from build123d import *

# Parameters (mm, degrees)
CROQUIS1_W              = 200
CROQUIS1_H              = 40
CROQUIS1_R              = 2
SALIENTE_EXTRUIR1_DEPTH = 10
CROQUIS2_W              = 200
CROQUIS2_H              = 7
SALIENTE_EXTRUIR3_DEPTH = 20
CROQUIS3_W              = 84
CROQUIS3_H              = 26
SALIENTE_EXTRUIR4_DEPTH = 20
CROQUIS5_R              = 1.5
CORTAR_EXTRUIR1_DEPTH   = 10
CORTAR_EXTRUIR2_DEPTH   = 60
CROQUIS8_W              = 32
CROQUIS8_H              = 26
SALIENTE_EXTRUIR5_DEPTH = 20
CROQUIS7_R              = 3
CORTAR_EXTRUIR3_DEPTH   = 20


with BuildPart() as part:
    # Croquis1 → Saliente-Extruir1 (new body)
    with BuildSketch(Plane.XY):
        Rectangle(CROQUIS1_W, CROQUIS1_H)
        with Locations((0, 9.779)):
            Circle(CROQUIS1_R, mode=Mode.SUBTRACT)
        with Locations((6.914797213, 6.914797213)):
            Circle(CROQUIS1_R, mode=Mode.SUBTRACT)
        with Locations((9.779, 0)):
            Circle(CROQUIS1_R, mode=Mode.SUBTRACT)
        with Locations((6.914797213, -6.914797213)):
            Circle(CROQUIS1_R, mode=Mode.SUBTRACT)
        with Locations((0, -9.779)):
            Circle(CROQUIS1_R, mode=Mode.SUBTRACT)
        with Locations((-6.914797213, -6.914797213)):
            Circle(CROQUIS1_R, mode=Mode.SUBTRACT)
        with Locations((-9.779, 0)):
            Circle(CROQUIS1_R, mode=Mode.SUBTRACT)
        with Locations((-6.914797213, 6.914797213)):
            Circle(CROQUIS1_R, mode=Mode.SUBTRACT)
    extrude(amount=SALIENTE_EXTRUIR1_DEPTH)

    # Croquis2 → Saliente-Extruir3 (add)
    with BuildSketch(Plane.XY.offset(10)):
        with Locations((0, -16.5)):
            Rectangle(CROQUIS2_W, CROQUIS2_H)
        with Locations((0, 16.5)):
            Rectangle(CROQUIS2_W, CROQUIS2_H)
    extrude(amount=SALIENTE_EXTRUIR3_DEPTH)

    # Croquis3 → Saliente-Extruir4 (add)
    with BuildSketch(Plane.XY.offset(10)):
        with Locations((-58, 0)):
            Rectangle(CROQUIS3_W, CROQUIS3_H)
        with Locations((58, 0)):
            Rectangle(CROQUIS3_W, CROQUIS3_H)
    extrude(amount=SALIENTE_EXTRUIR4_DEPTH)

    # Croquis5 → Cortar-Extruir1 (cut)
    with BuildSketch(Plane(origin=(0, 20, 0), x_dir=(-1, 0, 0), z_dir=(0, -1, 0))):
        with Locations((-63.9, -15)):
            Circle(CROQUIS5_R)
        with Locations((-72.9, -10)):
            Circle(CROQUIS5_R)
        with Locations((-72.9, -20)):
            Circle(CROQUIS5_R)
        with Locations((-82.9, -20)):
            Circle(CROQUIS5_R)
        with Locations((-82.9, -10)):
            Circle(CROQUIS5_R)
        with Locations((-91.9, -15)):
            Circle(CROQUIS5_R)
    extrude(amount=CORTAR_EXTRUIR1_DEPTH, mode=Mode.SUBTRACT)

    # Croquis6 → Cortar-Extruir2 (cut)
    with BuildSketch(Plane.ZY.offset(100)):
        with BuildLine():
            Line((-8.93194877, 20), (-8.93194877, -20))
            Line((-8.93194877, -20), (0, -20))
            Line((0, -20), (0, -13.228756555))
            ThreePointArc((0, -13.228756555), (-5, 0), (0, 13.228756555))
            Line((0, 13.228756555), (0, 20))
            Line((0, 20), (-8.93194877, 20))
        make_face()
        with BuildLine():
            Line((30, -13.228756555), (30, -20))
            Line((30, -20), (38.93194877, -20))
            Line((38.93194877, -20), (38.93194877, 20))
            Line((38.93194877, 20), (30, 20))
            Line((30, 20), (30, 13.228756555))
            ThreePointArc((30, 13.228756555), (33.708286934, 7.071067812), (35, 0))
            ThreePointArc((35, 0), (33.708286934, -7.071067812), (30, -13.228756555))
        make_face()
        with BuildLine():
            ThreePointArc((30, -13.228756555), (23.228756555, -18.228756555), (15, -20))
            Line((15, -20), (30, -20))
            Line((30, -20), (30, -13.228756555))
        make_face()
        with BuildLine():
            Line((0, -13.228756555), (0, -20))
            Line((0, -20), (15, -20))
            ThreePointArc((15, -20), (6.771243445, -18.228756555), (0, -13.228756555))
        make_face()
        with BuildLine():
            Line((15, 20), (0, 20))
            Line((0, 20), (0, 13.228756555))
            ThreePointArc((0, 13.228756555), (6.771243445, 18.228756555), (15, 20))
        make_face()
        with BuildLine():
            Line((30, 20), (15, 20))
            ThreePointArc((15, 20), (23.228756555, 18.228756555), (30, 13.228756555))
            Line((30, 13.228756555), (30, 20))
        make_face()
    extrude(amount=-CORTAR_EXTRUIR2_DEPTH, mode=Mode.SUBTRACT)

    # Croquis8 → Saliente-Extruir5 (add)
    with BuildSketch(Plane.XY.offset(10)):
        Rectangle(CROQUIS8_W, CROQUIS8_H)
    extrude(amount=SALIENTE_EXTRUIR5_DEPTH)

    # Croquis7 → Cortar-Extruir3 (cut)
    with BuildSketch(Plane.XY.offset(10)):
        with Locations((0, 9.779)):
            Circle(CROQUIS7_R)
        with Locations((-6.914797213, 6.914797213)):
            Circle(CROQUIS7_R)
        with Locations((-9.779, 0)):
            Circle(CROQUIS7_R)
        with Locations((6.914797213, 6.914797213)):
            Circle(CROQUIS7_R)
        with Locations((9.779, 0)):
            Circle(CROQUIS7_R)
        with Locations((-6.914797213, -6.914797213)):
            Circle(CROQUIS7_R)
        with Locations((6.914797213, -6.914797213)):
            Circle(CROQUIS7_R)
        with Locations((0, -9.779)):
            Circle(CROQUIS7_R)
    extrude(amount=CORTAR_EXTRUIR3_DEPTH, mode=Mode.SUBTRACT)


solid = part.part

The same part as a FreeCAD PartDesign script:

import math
import FreeCAD as App
import Part
import Sketcher
from FreeCAD import Vector
Q = App.Units.Quantity

doc = App.newDocument("Part")
body = doc.addObject("PartDesign::Body", "Body")

# Sketch on XY plane
sketch1 = body.newObject("Sketcher::SketchObject", "Sketch")
sketch1.AttachmentSupport = (doc.getObject("XY_Plane"), [""])
sketch1.MapMode = "FlatFace"
sketch1.addGeometry([
    Part.LineSegment(Vector(-100, 20, 0), Vector(-100, -20, 0)),  # 0
    Part.LineSegment(Vector(-100, -20, 0), Vector(100, -20, 0)),  # 1
    Part.LineSegment(Vector(100, -20, 0), Vector(100, 20, 0)),  # 2
    Part.LineSegment(Vector(100, 20, 0), Vector(-100, 20, 0)),  # 3
    Part.Circle(Vector(-6.9, -6.9, 0), Vector(0, 0, 1), 2),  # 4
    Part.Circle(Vector(0, -9.8, 0), Vector(0, 0, 1), 2),  # 5
    Part.Circle(Vector(6.9, -6.9, 0), Vector(0, 0, 1), 2),  # 6
    Part.Circle(Vector(-9.8, 0, 0), Vector(0, 0, 1), 2),  # 7
    Part.Circle(Vector(-6.9, 6.9, 0), Vector(0, 0, 1), 2),  # 8
    Part.Circle(Vector(9.8, 0, 0), Vector(0, 0, 1), 2),  # 9
    Part.Circle(Vector(0, 9.8, 0), Vector(0, 0, 1), 2),  # 10
    Part.Circle(Vector(6.9, 6.9, 0), Vector(0, 0, 1), 2),  # 11
], False)
sketch1.addConstraint([
    Sketcher.Constraint("Coincident", 0, 2, 1, 1),
    Sketcher.Constraint("Coincident", 1, 2, 2, 1),
    Sketcher.Constraint("Coincident", 2, 2, 3, 1),
    Sketcher.Constraint("Coincident", 3, 2, 0, 1),
    Sketcher.Constraint("Vertical", 0),
    Sketcher.Constraint("Horizontal", 1),
    Sketcher.Constraint("Vertical", 2),
    Sketcher.Constraint("Horizontal", 3),
    Sketcher.Constraint("Equal", 4, 5),
    Sketcher.Constraint("Equal", 5, 6),
    Sketcher.Constraint("Equal", 6, 7),
    Sketcher.Constraint("Equal", 7, 8),
    Sketcher.Constraint("Equal", 8, 9),
    Sketcher.Constraint("Equal", 9, 10),
    Sketcher.Constraint("Equal", 10, 11),
    Sketcher.Constraint("Symmetric", 6, 3, 8, 3, -1, 1),
    Sketcher.Constraint("Symmetric", 7, 3, 9, 3, -1, 1),
    Sketcher.Constraint("Symmetric", 5, 3, 10, 3, -1, 1),
    Sketcher.Constraint("Symmetric", 4, 3, 11, 3, -1, 1),
    Sketcher.Constraint("Symmetric", 0, 2, 2, 2, -1, 1),
    Sketcher.Constraint("Symmetric", 4, 3, 6, 3, -2),
    Sketcher.Constraint("PointOnObject", 5, 3, -2),
    Sketcher.Constraint("PointOnObject", 7, 3, -1),
    Sketcher.Constraint("Diameter", 4, Q("4 mm")),
    Sketcher.Constraint("DistanceX", 1, 1, 1, 2, Q("200 mm")),
    Sketcher.Constraint("DistanceY", 0, 2, 0, 1, Q("40 mm")),
    Sketcher.Constraint("DistanceY", 5, 3, -1, 1, Q("9.779 mm")),
    Sketcher.Constraint("DistanceX", 7, 3, -1, 1, Q("9.779 mm")),
    Sketcher.Constraint("DistanceX", 4, 3, -1, 1, Q("6.914797 mm")),
    Sketcher.Constraint("DistanceY", 4, 3, -1, 1, Q("6.914797 mm")),
])
pad1 = body.newObject("PartDesign::Pad", "Pad")
pad1.Profile = sketch1
pad1.Length = 10

# Sketch on XY plane
sketch2 = body.newObject("Sketcher::SketchObject", "Sketch001")
sketch2.AttachmentSupport = (doc.getObject("XY_Plane"), [""])
sketch2.MapMode = "FlatFace"
sketch2.AttachmentOffset = App.Placement(Vector(0, 0, 10), App.Rotation())
sketch2.addGeometry([
    Part.LineSegment(Vector(-100, -13, 0), Vector(-100, -20, 0)),  # 0
    Part.LineSegment(Vector(-100, -20, 0), Vector(100, -20, 0)),  # 1
    Part.LineSegment(Vector(100, -20, 0), Vector(100, -13, 0)),  # 2
    Part.LineSegment(Vector(100, -13, 0), Vector(-100, -13, 0)),  # 3
    Part.LineSegment(Vector(-100, 20, 0), Vector(-100, 13, 0)),  # 4
    Part.LineSegment(Vector(-100, 13, 0), Vector(100, 13, 0)),  # 5
    Part.LineSegment(Vector(100, 13, 0), Vector(100, 20, 0)),  # 6
    Part.LineSegment(Vector(100, 20, 0), Vector(-100, 20, 0)),  # 7
], False)
sketch2.addConstraint([
    Sketcher.Constraint("Coincident", 0, 2, 1, 1),
    Sketcher.Constraint("Coincident", 1, 2, 2, 1),
    Sketcher.Constraint("Coincident", 2, 2, 3, 1),
    Sketcher.Constraint("Coincident", 3, 2, 0, 1),
    Sketcher.Constraint("Coincident", 4, 2, 5, 1),
    Sketcher.Constraint("Coincident", 5, 2, 6, 1),
    Sketcher.Constraint("Coincident", 6, 2, 7, 1),
    Sketcher.Constraint("Coincident", 7, 2, 4, 1),
    Sketcher.Constraint("Vertical", 0),
    Sketcher.Constraint("Horizontal", 1),
    Sketcher.Constraint("Vertical", 2),
    Sketcher.Constraint("Horizontal", 3),
    Sketcher.Constraint("Vertical", 4),
    Sketcher.Constraint("Horizontal", 5),
    Sketcher.Constraint("Vertical", 6),
    Sketcher.Constraint("Horizontal", 7),
    Sketcher.Constraint("Symmetric", 2, 2, 4, 2, -1, 1),
    Sketcher.Constraint("Symmetric", 0, 2, 6, 2, -1, 1),
    Sketcher.Constraint("Vertical", 3, 2, 4, 2),
    Sketcher.Constraint("DistanceX", 1, 1, 1, 2, Q("200 mm")),
    Sketcher.Constraint("DistanceY", 0, 2, 0, 1, Q("7 mm")),
    Sketcher.Constraint("DistanceY", 0, 2, -1, 1, Q("20 mm")),
])
pad2 = body.newObject("PartDesign::Pad", "Pad001")
pad2.Profile = sketch2
pad2.Length = 20

# Sketch on XY plane
sketch3 = body.newObject("Sketcher::SketchObject", "Sketch002")
sketch3.AttachmentSupport = (doc.getObject("XY_Plane"), [""])
sketch3.MapMode = "FlatFace"
sketch3.AttachmentOffset = App.Placement(Vector(0, 0, 10), App.Rotation())
sketch3.addGeometry([
    Part.LineSegment(Vector(-100, 13, 0), Vector(-100, -13, 0)),  # 0
    Part.LineSegment(Vector(-100, -13, 0), Vector(-16, -13, 0)),  # 1
    Part.LineSegment(Vector(-16, -13, 0), Vector(-16, 13, 0)),  # 2
    Part.LineSegment(Vector(-16, 13, 0), Vector(-100, 13, 0)),  # 3
    Part.LineSegment(Vector(16, 13, 0), Vector(16, -13, 0)),  # 4
    Part.LineSegment(Vector(16, -13, 0), Vector(100, -13, 0)),  # 5
    Part.LineSegment(Vector(100, -13, 0), Vector(100, 13, 0)),  # 6
    Part.LineSegment(Vector(100, 13, 0), Vector(16, 13, 0)),  # 7
], False)
sketch3.addConstraint([
    Sketcher.Constraint("Coincident", 0, 2, 1, 1),
    Sketcher.Constraint("Coincident", 1, 2, 2, 1),
    Sketcher.Constraint("Coincident", 2, 2, 3, 1),
    Sketcher.Constraint("Coincident", 3, 2, 0, 1),
    Sketcher.Constraint("Coincident", 4, 2, 5, 1),
    Sketcher.Constraint("Coincident", 5, 2, 6, 1),
    Sketcher.Constraint("Coincident", 6, 2, 7, 1),
    Sketcher.Constraint("Coincident", 7, 2, 4, 1),
    Sketcher.Constraint("Vertical", 0),
    Sketcher.Constraint("Horizontal", 1),
    Sketcher.Constraint("Vertical", 2),
    Sketcher.Constraint("Horizontal", 3),
    Sketcher.Constraint("Vertical", 4),
    Sketcher.Constraint("Horizontal", 5),
    Sketcher.Constraint("Vertical", 6),
    Sketcher.Constraint("Horizontal", 7),
    Sketcher.Constraint("Symmetric", 2, 2, 4, 2, -1, 1),
    Sketcher.Constraint("Symmetric", 0, 2, 6, 2, -1, 1),
    Sketcher.Constraint("Horizontal", 1, 2, 4, 2),
    Sketcher.Constraint("DistanceX", 1, 1, 1, 2, Q("84 mm")),
    Sketcher.Constraint("DistanceY", 0, 2, 0, 1, Q("26 mm")),
    Sketcher.Constraint("DistanceX", 0, 2, -1, 1, Q("100 mm")),
])
pad3 = body.newObject("PartDesign::Pad", "Pad002")
pad3.Profile = sketch3
pad3.Length = 20

# Sketch on XZ plane
sketch4 = body.newObject("Sketcher::SketchObject", "Sketch003")
sketch4.AttachmentSupport = (doc.getObject("XZ_Plane"), [""])
sketch4.MapMode = "FlatFace"
sketch4.AttachmentOffset = App.Placement(Vector(0, 0, -20), App.Rotation())
sketch4.addGeometry([
    Part.Circle(Vector(63.9, 15, 0), Vector(0, 0, 1), 1.5),  # 0
    Part.Circle(Vector(72.9, 10, 0), Vector(0, 0, 1), 1.5),  # 1
    Part.Circle(Vector(72.9, 20, 0), Vector(0, 0, 1), 1.5),  # 2
    Part.Circle(Vector(82.9, 20, 0), Vector(0, 0, 1), 1.5),  # 3
    Part.Circle(Vector(82.9, 10, 0), Vector(0, 0, 1), 1.5),  # 4
    Part.Circle(Vector(91.9, 15, 0), Vector(0, 0, 1), 1.5),  # 5
], False)
sketch4.addConstraint([
    Sketcher.Constraint("Equal", 0, 1),
    Sketcher.Constraint("Equal", 1, 2),
    Sketcher.Constraint("Equal", 2, 3),
    Sketcher.Constraint("Equal", 3, 4),
    Sketcher.Constraint("Equal", 4, 5),
    Sketcher.Constraint("Horizontal", 2, 3, 3, 3),
    Sketcher.Constraint("Horizontal", 1, 3, 4, 3),
    Sketcher.Constraint("Horizontal", 0, 3, 5, 3),
    Sketcher.Constraint("Vertical", 1, 3, 2, 3),
    Sketcher.Constraint("Vertical", 3, 3, 4, 3),
    Sketcher.Constraint("Diameter", 0, Q("3 mm")),
    Sketcher.Constraint("DistanceY", -1, 1, 0, 3, Q("15 mm")),
    Sketcher.Constraint("DistanceY", -1, 1, 1, 3, Q("10 mm")),
    Sketcher.Constraint("DistanceY", -1, 1, 2, 3, Q("20 mm")),
    Sketcher.Constraint("DistanceX", 0, 3, 1, 3, Q("9 mm")),
    Sketcher.Constraint("DistanceX", 2, 3, 3, 3, Q("10 mm")),
    Sketcher.Constraint("DistanceX", 3, 3, 5, 3, Q("9 mm")),
    Sketcher.Constraint("DistanceX", -1, 1, 0, 3, Q("63.9 mm")),
])
pocket1 = body.newObject("PartDesign::Pocket", "Pocket")
pocket1.Profile = sketch4
pocket1.Length = 10
pocket1.Reversed = True

# Sketch on YZ plane
sketch5 = body.newObject("Sketcher::SketchObject", "Sketch004")
sketch5.AttachmentSupport = (doc.getObject("YZ_Plane"), [""])
sketch5.MapMode = "FlatFace"
sketch5.AttachmentOffset = App.Placement(Vector(0, 0, -100), App.Rotation())
sketch5.addGeometry([
    Part.LineSegment(Vector(20, -9, 0), Vector(-20, -9, 0)),  # 0
    Part.LineSegment(Vector(-20, -9, 0), Vector(-20, 15, 0)),  # 1
    Part.ArcOfCircle(Part.Circle(Vector(0, 15, 0), Vector(0, 0, 1), 20), math.radians(-180), math.radians(-131)),  # 2
    Part.ArcOfCircle(Part.Circle(Vector(0, 15, 0), Vector(0, 0, 1), 20), math.radians(-131), math.radians(-49)),  # 3
    Part.ArcOfCircle(Part.Circle(Vector(0, 15, 0), Vector(0, 0, 1), 20), math.radians(-49), math.radians(0)),  # 4
    Part.LineSegment(Vector(20, 15, 0), Vector(20, -9, 0)),  # 5
    Part.LineSegment(Vector(-20, 39, 0), Vector(20, 39, 0)),  # 6
    Part.LineSegment(Vector(20, 39, 0), Vector(20, 15, 0)),  # 7
    Part.ArcOfCircle(Part.Circle(Vector(0, 15, 0), Vector(0, 0, 1), 20), math.radians(0), math.radians(49)),  # 8
    Part.ArcOfCircle(Part.Circle(Vector(0, 15, 0), Vector(0, 0, 1), 20), math.radians(49), math.radians(90)),  # 9
    Part.ArcOfCircle(Part.Circle(Vector(0, 15, 0), Vector(0, 0, 1), 20), math.radians(90), math.radians(131)),  # 10
    Part.ArcOfCircle(Part.Circle(Vector(0, 15, 0), Vector(0, 0, 1), 20), math.radians(131), math.radians(180)),  # 11
    Part.LineSegment(Vector(-20, 15, 0), Vector(-20, 39, 0)),  # 12
], False)
sketch5.addConstraint([
    Sketcher.Constraint("Coincident", 0, 2, 1, 1),
    Sketcher.Constraint("Tangent", 1, 2, 2, 1),
    Sketcher.Constraint("Tangent", 2, 2, 3, 1),
    Sketcher.Constraint("Tangent", 3, 2, 4, 1),
    Sketcher.Constraint("Tangent", 4, 2, 5, 1),
    Sketcher.Constraint("Coincident", 5, 2, 0, 1),
    Sketcher.Constraint("Coincident", 6, 2, 7, 1),
    Sketcher.Constraint("Tangent", 7, 2, 8, 1),
    Sketcher.Constraint("Tangent", 8, 2, 9, 1),
    Sketcher.Constraint("Tangent", 9, 2, 10, 1),
    Sketcher.Constraint("Tangent", 10, 2, 11, 1),
    Sketcher.Constraint("Tangent", 11, 2, 12, 1),
    Sketcher.Constraint("Coincident", 12, 2, 6, 1),
    Sketcher.Constraint("Horizontal", 0),
    Sketcher.Constraint("Vertical", 1),
    Sketcher.Constraint("Vertical", 5),
    Sketcher.Constraint("Horizontal", 6),
    Sketcher.Constraint("Vertical", 7),
    Sketcher.Constraint("Vertical", 12),
    Sketcher.Constraint("Coincident", 4, 3, 2, 3),
    Sketcher.Constraint("Coincident", 8, 3, 2, 3),
    Sketcher.Constraint("Coincident", 10, 3, 2, 3),
    Sketcher.Constraint("Coincident", 11, 2, 1, 2),
    Sketcher.Constraint("Symmetric", 2, 2, 3, 2, -1, 1),
    Sketcher.Constraint("Symmetric", 8, 2, 10, 2, -2),
    Sketcher.Constraint("PointOnObject", 9, 2, -2),
    Sketcher.Constraint("Vertical", 3, 2, 8, 2),
    Sketcher.Constraint("Equal", 5, 7),
    Sketcher.Constraint("Radius", 2, Q("20 mm")),
    Sketcher.Constraint("DistanceY", -1, 1, 2, 3, Q("15 mm")),
    Sketcher.Constraint("DistanceY", 1, 1, 1, 2, Q("23.931949 mm")),
])
pocket2 = body.newObject("PartDesign::Pocket", "Pocket001")
pocket2.Profile = sketch5
pocket2.Length = 60
pocket2.Reversed = True

# Sketch on XY plane
sketch6 = body.newObject("Sketcher::SketchObject", "Sketch005")
sketch6.AttachmentSupport = (doc.getObject("XY_Plane"), [""])
sketch6.MapMode = "FlatFace"
sketch6.AttachmentOffset = App.Placement(Vector(0, 0, 10), App.Rotation())
sketch6.addGeometry([
    Part.LineSegment(Vector(-16, 13, 0), Vector(-16, -13, 0)),
    Part.LineSegment(Vector(-16, -13, 0), Vector(16, -13, 0)),
    Part.LineSegment(Vector(16, -13, 0), Vector(16, 13, 0)),
    Part.LineSegment(Vector(16, 13, 0), Vector(-16, 13, 0)),
], False)
sketch6.addConstraint([
    Sketcher.Constraint("Coincident", 0, 2, 1, 1),
    Sketcher.Constraint("Coincident", 1, 2, 2, 1),
    Sketcher.Constraint("Coincident", 2, 2, 3, 1),
    Sketcher.Constraint("Coincident", 3, 2, 0, 1),
    Sketcher.Constraint("Vertical", 0),
    Sketcher.Constraint("Horizontal", 1),
    Sketcher.Constraint("Vertical", 2),
    Sketcher.Constraint("Horizontal", 3),
    Sketcher.Constraint("Symmetric", 0, 2, 2, 2, -1, 1),
    Sketcher.Constraint("DistanceX", 1, 1, 1, 2, Q("32 mm")),
    Sketcher.Constraint("DistanceY", 0, 2, 0, 1, Q("26 mm")),
])
pad4 = body.newObject("PartDesign::Pad", "Pad003")
pad4.Profile = sketch6
pad4.Length = 20

# Sketch on XY plane
sketch7 = body.newObject("Sketcher::SketchObject", "Sketch006")
sketch7.AttachmentSupport = (doc.getObject("XY_Plane"), [""])
sketch7.MapMode = "FlatFace"
sketch7.AttachmentOffset = App.Placement(Vector(0, 0, 10), App.Rotation())
sketch7.addGeometry([
    Part.Circle(Vector(0, 9.8, 0), Vector(0, 0, 1), 3),  # 0
    Part.Circle(Vector(-6.9, 6.9, 0), Vector(0, 0, 1), 3),  # 1
    Part.Circle(Vector(-9.8, 0, 0), Vector(0, 0, 1), 3),  # 2
    Part.Circle(Vector(6.9, 6.9, 0), Vector(0, 0, 1), 3),  # 3
    Part.Circle(Vector(9.8, 0, 0), Vector(0, 0, 1), 3),  # 4
    Part.Circle(Vector(-6.9, -6.9, 0), Vector(0, 0, 1), 3),  # 5
    Part.Circle(Vector(6.9, -6.9, 0), Vector(0, 0, 1), 3),  # 6
    Part.Circle(Vector(0, -9.8, 0), Vector(0, 0, 1), 3),  # 7
], False)
sketch7.addConstraint([
    Sketcher.Constraint("Equal", 0, 1),
    Sketcher.Constraint("Equal", 1, 2),
    Sketcher.Constraint("Equal", 2, 3),
    Sketcher.Constraint("Equal", 3, 4),
    Sketcher.Constraint("Equal", 4, 5),
    Sketcher.Constraint("Equal", 5, 6),
    Sketcher.Constraint("Equal", 6, 7),
    Sketcher.Constraint("Symmetric", 2, 3, 4, 3, -1, 1),
    Sketcher.Constraint("Symmetric", 3, 3, 5, 3, -1, 1),
    Sketcher.Constraint("Symmetric", 1, 3, 6, 3, -1, 1),
    Sketcher.Constraint("Symmetric", 0, 3, 7, 3, -1, 1),
    Sketcher.Constraint("Symmetric", 1, 3, 3, 3, -2),
    Sketcher.Constraint("PointOnObject", 0, 3, -2),
    Sketcher.Constraint("PointOnObject", 2, 3, -1),
    Sketcher.Constraint("Diameter", 0, Q("6 mm")),
    Sketcher.Constraint("DistanceY", -1, 1, 0, 3, Q("9.779 mm")),
    Sketcher.Constraint("DistanceX", 2, 3, -1, 1, Q("9.779 mm")),
    Sketcher.Constraint("DistanceX", 1, 3, -1, 1, Q("6.914797 mm")),
    Sketcher.Constraint("DistanceY", -1, 1, 1, 3, Q("6.914797 mm")),
])
pocket3 = body.newObject("PartDesign::Pocket", "Pocket002")
pocket3.Profile = sketch7
pocket3.Length = 20
pocket3.Reversed = True

doc.recompute()
